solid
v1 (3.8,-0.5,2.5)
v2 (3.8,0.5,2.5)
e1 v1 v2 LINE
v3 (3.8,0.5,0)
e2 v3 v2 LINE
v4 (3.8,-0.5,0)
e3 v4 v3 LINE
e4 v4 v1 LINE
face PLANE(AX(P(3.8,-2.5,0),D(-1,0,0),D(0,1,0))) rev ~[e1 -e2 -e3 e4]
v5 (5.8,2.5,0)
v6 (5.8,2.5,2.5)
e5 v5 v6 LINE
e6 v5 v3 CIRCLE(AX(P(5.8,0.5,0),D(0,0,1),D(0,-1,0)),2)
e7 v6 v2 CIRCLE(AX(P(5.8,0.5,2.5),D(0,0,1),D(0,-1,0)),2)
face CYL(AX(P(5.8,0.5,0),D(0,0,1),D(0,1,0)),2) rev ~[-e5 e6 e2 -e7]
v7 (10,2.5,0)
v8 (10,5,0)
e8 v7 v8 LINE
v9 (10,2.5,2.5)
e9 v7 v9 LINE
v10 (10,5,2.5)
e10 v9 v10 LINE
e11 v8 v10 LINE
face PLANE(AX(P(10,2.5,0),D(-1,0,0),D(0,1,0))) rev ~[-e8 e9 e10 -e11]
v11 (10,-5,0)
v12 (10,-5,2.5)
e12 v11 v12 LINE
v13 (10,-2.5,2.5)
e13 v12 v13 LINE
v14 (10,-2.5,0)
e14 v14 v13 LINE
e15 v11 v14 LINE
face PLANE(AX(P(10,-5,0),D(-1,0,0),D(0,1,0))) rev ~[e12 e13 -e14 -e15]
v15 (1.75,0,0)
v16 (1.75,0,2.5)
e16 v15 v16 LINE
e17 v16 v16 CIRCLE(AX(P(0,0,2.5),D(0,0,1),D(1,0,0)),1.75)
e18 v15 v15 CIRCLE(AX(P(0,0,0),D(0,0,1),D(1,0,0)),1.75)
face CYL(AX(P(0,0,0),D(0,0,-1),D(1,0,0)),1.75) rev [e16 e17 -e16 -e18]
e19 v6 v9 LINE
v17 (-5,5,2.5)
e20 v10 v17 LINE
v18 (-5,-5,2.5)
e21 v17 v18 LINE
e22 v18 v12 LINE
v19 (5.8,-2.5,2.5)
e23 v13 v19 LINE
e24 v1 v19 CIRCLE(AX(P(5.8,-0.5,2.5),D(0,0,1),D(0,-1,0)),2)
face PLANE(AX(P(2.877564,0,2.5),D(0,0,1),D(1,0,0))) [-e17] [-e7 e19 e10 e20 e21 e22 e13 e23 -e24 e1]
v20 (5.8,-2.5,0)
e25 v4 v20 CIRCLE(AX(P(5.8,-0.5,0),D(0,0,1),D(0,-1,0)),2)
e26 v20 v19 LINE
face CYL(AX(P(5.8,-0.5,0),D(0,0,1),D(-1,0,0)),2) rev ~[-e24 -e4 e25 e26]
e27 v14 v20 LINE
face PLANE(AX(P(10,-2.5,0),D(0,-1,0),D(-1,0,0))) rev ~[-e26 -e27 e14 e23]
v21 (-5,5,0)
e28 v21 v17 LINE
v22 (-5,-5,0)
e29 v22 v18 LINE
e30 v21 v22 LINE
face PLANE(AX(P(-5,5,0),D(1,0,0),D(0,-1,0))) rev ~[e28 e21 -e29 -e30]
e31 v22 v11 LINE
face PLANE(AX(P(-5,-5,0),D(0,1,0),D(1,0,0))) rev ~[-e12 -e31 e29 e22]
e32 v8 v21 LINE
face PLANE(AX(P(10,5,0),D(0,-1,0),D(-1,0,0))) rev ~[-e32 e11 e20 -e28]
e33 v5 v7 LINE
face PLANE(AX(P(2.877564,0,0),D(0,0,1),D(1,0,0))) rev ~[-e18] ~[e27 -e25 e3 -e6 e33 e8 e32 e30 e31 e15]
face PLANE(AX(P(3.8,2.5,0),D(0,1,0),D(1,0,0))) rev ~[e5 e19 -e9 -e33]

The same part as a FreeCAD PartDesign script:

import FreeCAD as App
import Part
import Sketcher

V = App.Vector


def edges_at(feature, points):
    """Names of the edges that pass closest to the given points."""
    edges = feature.Shape.Edges
    near = lambda p: min(range(len(edges)), key=lambda i: edges[i].distToShape(Part.Vertex(*p))[0])
    return sorted({f"Edge{near(p) + 1}" for p in points})


def add_polygon(sketch, points):
    """Adds a closed chain of lines whose ends are joined by coincident constraints."""
    first, n = sketch.GeometryCount, len(points)
    for a, b in zip(points, points[1:] + points[:1]):
        sketch.addGeometry(Part.LineSegment(App.Vector(*a, 0), App.Vector(*b, 0)), False)
    for i in range(n):
        sketch.addConstraint(Sketcher.Constraint("Coincident", first + i, 2, first + (i + 1) % n, 1))

doc = App.newDocument("Part")
body = doc.addObject("PartDesign::Body", "Body")

# Sketch on XY plane
sketch1 = body.newObject("Sketcher::SketchObject", "Sketch")
sketch1.AttachmentSupport = (doc.getObject("XY_Plane"), [""])
sketch1.MapMode = "FlatFace"
add_polygon(sketch1, [(10, 5), (-5, 5), (-5, -5), (10, -5), (10, -2.5), (3.8, -2.5), (3.8, 2.5), (10, 2.5)])  # lines 0-7
sketch1.addGeometry(Part.Circle(V(0, 0, 0), V(0, 0, 1), 1.8), False)  # 8
sketch1.addConstraint([
    Sketcher.Constraint("Horizontal", 0),
    Sketcher.Constraint("Vertical", 1),
    Sketcher.Constraint("Horizontal", 2),
    Sketcher.Constraint("Vertical", 3),
    Sketcher.Constraint("Horizontal", 4),
    Sketcher.Constraint("Vertical", 5),
    Sketcher.Constraint("Horizontal", 6),
    Sketcher.Constraint("Vertical", 7),
    Sketcher.Constraint("Coincident", 8, 3, -1, 1),
    Sketcher.Constraint("Symmetric", 3, 2, 6, 2, -1),
    Sketcher.Constraint("Equal", 3, 7),
    Sketcher.Constraint("Diameter", 8, 3.5),
    Sketcher.Constraint("DistanceX", 0, 2, 0, 1, 15.0),
    Sketcher.Constraint("DistanceY", 1, 2, 1, 1, 10.0),
    Sketcher.Constraint("DistanceY", 5, 1, 5, 2, 5.0),
    Sketcher.Constraint("DistanceX", 4, 2, 4, 1, 6.2),
    Sketcher.Constraint("DistanceX", 0, 2, -1, 1, 5.0),
])
pad1 = body.newObject("PartDesign::Pad", "Pad")
pad1.Profile = sketch1
pad1.Length = 2.5
doc.recompute()

fillet = body.newObject("PartDesign::Fillet", "Fillet")
fillet.Base = (pad1, edges_at(pad1, [(3.8, 2.5, 1.25)]))
fillet.Radius = 2
doc.recompute()

fillet2 = body.newObject("PartDesign::Fillet", "Fillet001")
fillet2.Base = (fillet, edges_at(fillet, [(3.8, -2.5, 1.25)]))
fillet2.Radius = 2

doc.recompute()
